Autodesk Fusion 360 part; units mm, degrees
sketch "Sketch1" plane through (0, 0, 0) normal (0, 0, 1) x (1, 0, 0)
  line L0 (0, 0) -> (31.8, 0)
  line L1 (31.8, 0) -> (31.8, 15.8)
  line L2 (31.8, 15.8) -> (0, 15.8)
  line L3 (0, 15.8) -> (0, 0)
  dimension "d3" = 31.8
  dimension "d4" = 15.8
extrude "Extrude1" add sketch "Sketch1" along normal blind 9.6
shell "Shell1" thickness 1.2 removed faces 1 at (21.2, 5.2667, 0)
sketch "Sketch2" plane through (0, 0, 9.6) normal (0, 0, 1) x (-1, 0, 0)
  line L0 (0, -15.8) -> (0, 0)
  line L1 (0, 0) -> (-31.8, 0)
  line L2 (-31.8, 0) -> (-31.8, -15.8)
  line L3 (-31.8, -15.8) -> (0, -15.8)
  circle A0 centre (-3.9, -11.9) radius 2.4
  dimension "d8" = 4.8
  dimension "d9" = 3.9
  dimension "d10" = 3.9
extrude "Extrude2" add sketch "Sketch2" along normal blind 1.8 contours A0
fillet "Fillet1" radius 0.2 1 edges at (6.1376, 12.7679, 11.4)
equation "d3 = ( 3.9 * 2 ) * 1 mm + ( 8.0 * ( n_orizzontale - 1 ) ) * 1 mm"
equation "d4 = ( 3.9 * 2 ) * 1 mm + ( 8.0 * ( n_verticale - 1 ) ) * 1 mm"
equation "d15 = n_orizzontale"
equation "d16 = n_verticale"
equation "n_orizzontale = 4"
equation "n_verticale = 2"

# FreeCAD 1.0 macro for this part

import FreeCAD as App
import Part
import Sketcher

V = App.Vector
Q = App.Units.Quantity


def edges_at(feature, points):
    """Names of the edges that pass closest to the given points."""
    edges = feature.Shape.Edges
    near = lambda p: min(range(len(edges)), key=lambda i: edges[i].distToShape(Part.Vertex(*p))[0])
    return sorted({f"Edge{near(p) + 1}" for p in points})


def faces_at(feature, points):
    """Names of the faces that lie closest to the given points."""
    faces = feature.Shape.Faces
    near = lambda p: min(range(len(faces)), key=lambda i: faces[i].distToShape(Part.Vertex(*p))[0])
    return sorted({f"Face{near(p) + 1}" for p in points})

doc = App.newDocument("Part")
params = doc.addObject("Spreadsheet::Sheet", "Params")
for row, (alias, value) in enumerate([
    ("sketch1_width", "31.8 mm"),
    ("sketch1_height", "15.8 mm"),
    ("pad1_length", "9.6 mm"),
    ("thickness_wall", "1.2 mm"),
    ("sketch2_diameter", "4.8 mm"),
    ("pad2_length", "1.8 mm"),
    ("fillet_radius", "0.2 mm"),
], start=1):
    params.set(f"A{row}", alias)
    params.set(f"B{row}", "=" + value)
    params.setAlias(f"B{row}", alias)

body = doc.addObject("PartDesign::Body", "Body")

# Sketch on XY plane
sketch1 = doc.addObject("Sketcher::SketchObject", "Sketch")
body.addObject(sketch1)
sketch1.AttachmentSupport = (doc.XY_Plane, [""])
sketch1.MapMode = "FlatFace"
sketch1.addGeometry([
    Part.LineSegment(V(0, 16, 0), V(0, 0, 0)),
    Part.LineSegment(V(0, 0, 0), V(32, 0, 0)),
    Part.LineSegment(V(32, 0, 0), V(32, 16, 0)),
    Part.LineSegment(V(32, 16, 0), V(0, 16, 0)),
], False)
sketch1.addConstraint([
    Sketcher.Constraint("Coincident", 0, 2, 1, 1),
    Sketcher.Constraint("Coincident", 1, 2, 2, 1),
    Sketcher.Constraint("Coincident", 2, 2, 3, 1),
    Sketcher.Constraint("Coincident", 3, 2, 0, 1),
    Sketcher.Constraint("Vertical", 0),
    Sketcher.Constraint("Horizontal", 1),
    Sketcher.Constraint("Vertical", 2),
    Sketcher.Constraint("Horizontal", 3),
    Sketcher.Constraint("Coincident", 0, 2, -1, 1),
    Sketcher.Constraint("DistanceX", 1, 1, 1, 2, Q("31.8 mm")),
    Sketcher.Constraint("DistanceY", 0, 2, 0, 1, Q("15.8 mm")),
])
sketch1.setExpression("Constraints[9]", "Params.sketch1_width")
sketch1.setExpression("Constraints[10]", "Params.sketch1_height")
pad1 = doc.addObject("PartDesign::Pad", "Pad")
body.addObject(pad1)
pad1.Profile = sketch1
pad1.setExpression("Length", "Params.pad1_length")
doc.recompute()

thickness = doc.addObject("PartDesign::Thickness", "Thickness")
body.addObject(thickness)
thickness.Base = (pad1, faces_at(pad1, [(21.2, 5.267, 0)]))
thickness.setExpression("Value", "Params.thickness_wall")
thickness.Reversed = True
thickness.Join = "Intersection"

# Sketch on XY plane
sketch2 = doc.addObject("Sketcher::SketchObject", "Sketch001")
body.addObject(sketch2)
sketch2.AttachmentSupport = (doc.XY_Plane, [""])
sketch2.MapMode = "FlatFace"
sketch2.AttachmentOffset = App.Placement(V(0, 0, 9.6), App.Rotation())
sketch2.addGeometry(Part.Circle(V(3.9, 11.9, 0), V(0, 0, 1), 2.4), False)
sketch2.addConstraint([
    Sketcher.Constraint("Diameter", 0, Q("4.8 mm")),
    Sketcher.Constraint("DistanceX", -1, 1, 0, 3, Q("3.9 mm")),
    Sketcher.Constraint("DistanceY", -1, 1, 0, 3, Q("11.9 mm")),
])
sketch2.setExpression("Constraints[0]", "Params.sketch2_diameter")
pad2 = doc.addObject("PartDesign::Pad", "Pad001")
body.addObject(pad2)
pad2.Profile = sketch2
pad2.setExpression("Length", "Params.pad2_length")
doc.recompute()

fillet = doc.addObject("PartDesign::Fillet", "Fillet")
body.addObject(fillet)
fillet.Base = (pad2, edges_at(pad2, [(6.138, 12.768, 11.4)]))
fillet.setExpression("Radius", "Params.fillet_radius")

doc.recompute()
